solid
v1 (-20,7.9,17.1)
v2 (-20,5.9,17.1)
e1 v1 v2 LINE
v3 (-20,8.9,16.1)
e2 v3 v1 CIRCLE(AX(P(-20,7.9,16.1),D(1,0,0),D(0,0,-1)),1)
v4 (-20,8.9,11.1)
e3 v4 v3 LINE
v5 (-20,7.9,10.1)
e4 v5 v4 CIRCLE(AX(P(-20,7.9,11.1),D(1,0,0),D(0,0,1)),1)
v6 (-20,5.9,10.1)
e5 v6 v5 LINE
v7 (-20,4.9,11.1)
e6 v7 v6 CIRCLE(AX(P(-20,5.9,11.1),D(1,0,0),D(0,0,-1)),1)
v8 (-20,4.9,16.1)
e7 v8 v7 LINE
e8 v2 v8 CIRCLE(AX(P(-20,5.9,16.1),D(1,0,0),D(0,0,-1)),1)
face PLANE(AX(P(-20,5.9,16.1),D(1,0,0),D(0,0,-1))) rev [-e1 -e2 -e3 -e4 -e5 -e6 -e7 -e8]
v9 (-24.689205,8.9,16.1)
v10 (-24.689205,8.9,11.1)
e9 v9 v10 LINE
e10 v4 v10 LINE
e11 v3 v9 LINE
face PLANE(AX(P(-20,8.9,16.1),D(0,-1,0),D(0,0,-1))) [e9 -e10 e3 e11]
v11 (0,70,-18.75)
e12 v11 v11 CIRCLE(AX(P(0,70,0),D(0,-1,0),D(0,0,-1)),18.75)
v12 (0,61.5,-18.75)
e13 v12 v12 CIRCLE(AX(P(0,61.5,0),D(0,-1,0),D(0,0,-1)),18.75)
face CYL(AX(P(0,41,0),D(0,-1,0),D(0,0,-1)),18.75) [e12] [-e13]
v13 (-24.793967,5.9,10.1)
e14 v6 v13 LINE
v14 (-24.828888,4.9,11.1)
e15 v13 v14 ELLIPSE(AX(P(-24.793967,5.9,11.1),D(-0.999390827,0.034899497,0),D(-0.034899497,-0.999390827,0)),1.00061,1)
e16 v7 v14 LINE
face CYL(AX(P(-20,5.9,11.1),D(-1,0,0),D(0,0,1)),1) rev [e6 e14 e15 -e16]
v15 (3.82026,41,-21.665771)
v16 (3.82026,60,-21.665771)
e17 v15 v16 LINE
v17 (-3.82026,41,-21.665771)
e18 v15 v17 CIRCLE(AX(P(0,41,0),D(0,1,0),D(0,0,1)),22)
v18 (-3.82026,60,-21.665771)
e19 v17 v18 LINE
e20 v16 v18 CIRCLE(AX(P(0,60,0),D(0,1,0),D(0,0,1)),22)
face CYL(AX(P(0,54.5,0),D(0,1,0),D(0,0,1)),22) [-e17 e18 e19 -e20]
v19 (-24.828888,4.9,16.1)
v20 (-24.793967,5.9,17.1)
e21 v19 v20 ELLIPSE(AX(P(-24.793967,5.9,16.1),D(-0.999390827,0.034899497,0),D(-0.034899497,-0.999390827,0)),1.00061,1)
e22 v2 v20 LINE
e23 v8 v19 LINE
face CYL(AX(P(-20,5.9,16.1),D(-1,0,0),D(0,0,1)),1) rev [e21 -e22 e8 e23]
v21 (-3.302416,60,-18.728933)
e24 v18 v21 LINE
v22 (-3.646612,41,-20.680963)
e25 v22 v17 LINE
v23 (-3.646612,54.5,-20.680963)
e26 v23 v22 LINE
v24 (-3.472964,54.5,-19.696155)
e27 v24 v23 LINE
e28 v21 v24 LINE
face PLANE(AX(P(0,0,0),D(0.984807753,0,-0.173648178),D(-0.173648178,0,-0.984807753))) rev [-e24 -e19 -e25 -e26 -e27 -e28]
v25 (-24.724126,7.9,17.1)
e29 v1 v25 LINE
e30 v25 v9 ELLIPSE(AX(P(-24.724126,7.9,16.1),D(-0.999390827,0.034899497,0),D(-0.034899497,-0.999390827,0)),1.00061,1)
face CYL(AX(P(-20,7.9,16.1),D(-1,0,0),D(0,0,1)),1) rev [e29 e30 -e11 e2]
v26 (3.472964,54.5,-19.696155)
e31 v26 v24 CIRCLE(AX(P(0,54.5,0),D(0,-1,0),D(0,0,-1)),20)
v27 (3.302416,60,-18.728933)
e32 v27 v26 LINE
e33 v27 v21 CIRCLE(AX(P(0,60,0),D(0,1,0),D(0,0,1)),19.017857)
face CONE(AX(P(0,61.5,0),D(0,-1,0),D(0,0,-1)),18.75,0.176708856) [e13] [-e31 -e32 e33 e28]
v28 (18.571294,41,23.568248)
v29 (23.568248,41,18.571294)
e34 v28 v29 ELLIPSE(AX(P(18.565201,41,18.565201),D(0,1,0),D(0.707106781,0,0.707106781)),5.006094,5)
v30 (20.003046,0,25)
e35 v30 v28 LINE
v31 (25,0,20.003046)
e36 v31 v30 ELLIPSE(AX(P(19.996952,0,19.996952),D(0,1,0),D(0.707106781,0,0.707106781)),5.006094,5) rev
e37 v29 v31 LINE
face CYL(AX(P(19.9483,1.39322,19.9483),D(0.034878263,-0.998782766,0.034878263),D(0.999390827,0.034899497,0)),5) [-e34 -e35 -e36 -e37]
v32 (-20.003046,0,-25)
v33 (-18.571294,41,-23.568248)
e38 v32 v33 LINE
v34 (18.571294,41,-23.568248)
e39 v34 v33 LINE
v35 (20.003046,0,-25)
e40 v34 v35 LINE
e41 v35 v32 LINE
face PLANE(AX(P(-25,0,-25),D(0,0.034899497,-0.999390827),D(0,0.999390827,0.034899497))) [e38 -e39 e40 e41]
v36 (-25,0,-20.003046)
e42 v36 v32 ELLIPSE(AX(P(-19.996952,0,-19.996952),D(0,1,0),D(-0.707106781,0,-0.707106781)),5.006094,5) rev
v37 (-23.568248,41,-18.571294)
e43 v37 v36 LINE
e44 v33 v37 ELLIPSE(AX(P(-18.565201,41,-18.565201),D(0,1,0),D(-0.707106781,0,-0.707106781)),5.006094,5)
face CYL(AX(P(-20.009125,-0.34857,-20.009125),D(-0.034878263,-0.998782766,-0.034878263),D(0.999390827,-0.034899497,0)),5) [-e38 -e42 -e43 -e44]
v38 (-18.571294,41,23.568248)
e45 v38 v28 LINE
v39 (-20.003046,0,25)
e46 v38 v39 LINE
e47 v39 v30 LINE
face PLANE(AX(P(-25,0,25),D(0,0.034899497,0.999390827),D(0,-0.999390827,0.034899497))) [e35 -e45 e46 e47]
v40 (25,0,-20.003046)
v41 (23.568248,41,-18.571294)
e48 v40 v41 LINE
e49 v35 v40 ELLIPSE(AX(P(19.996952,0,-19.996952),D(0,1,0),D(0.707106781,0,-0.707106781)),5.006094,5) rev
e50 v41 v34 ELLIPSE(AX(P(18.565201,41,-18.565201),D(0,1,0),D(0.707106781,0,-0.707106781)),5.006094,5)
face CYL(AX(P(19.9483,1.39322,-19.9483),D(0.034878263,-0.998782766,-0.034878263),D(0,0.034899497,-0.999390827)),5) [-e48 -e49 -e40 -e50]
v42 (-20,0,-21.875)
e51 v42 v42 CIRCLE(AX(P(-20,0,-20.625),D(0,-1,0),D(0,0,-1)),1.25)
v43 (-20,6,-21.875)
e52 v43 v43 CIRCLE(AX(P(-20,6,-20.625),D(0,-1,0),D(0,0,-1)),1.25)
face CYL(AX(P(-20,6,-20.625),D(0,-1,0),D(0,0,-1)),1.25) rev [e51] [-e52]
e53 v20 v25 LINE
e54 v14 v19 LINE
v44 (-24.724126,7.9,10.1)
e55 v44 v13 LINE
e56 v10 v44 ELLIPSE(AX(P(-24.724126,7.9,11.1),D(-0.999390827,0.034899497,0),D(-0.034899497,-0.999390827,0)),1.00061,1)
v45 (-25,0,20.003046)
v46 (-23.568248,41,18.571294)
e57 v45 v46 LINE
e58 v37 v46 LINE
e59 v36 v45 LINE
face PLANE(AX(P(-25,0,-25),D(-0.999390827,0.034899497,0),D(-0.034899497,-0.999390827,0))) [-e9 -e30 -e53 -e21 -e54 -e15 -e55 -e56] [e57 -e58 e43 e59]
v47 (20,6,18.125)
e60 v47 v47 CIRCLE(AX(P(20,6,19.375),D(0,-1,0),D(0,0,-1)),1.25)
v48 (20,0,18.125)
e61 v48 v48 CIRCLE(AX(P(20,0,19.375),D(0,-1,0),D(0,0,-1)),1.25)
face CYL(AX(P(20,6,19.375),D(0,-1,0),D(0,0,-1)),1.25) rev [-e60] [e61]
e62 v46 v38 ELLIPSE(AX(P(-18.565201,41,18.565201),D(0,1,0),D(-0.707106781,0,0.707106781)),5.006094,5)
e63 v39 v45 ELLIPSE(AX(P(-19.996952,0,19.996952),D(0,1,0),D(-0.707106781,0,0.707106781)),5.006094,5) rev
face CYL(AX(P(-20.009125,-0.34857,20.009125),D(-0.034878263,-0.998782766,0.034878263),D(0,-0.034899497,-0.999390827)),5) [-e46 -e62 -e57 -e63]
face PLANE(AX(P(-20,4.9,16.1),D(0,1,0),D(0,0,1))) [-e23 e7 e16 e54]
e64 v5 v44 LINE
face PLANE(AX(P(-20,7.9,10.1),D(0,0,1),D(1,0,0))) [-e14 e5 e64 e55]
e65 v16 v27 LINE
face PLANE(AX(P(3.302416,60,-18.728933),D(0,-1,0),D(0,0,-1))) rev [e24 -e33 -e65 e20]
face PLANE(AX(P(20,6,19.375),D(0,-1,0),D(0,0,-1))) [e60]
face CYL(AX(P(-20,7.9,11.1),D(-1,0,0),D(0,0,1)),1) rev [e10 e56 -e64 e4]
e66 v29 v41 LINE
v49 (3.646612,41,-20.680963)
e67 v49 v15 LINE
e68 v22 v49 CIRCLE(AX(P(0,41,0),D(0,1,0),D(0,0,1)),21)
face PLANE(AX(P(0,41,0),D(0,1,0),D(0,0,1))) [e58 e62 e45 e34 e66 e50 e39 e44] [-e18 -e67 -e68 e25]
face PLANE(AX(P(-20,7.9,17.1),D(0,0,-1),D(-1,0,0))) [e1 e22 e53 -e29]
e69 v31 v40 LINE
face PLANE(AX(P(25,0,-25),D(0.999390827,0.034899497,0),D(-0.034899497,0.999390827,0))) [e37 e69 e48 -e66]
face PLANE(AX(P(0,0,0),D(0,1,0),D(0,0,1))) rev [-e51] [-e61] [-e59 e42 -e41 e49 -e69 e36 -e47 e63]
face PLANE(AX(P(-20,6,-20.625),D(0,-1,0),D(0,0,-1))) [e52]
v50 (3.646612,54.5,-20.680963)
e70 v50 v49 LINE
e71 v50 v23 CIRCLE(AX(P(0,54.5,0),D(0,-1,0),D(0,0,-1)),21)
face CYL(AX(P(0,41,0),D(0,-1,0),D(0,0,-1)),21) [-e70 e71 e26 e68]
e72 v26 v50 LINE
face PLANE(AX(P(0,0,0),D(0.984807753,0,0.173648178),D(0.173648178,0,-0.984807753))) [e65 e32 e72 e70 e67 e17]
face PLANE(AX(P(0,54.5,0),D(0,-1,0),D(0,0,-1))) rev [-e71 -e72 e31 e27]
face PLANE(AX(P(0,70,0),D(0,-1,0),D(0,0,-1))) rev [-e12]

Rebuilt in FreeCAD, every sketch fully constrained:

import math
import FreeCAD as App
import Part
import Sketcher


def edges_at(feature, points):
    """Names of the edges that pass closest to the given points."""
    edges = feature.Shape.Edges
    near = lambda p: min(range(len(edges)), key=lambda i: edges[i].distToShape(Part.Vertex(*p))[0])
    return sorted({f"Edge{near(p) + 1}" for p in points})

doc = App.newDocument("Part")
body = doc.addObject("PartDesign::Body", "Body")

sketch1 = body.newObject("Sketcher::SketchObject", "Sketch")
sketch1.AttachmentSupport = (doc.getObject("XZ_Plane"), [""])
sketch1.MapMode = "FlatFace"
sketch1.addGeometry(Part.LineSegment(App.Vector(-25, -25, 0), App.Vector(-25, 25, 0)), False)
sketch1.addGeometry(Part.LineSegment(App.Vector(-25, 25, 0), App.Vector(25, 25, 0)), False)
sketch1.addGeometry(Part.LineSegment(App.Vector(25, 25, 0), App.Vector(25, -25, 0)), False)
sketch1.addGeometry(Part.LineSegment(App.Vector(25, -25, 0), App.Vector(-25, -25, 0)), False)
sketch1.addConstraint(Sketcher.Constraint("Coincident", 0, 2, 1, 1))
sketch1.addConstraint(Sketcher.Constraint("Coincident", 1, 2, 2, 1))
sketch1.addConstraint(Sketcher.Constraint("Coincident", 2, 2, 3, 1))
sketch1.addConstraint(Sketcher.Constraint("Coincident", 3, 2, 0, 1))
sketch1.addConstraint(Sketcher.Constraint("Vertical", 0))
sketch1.addConstraint(Sketcher.Constraint("Horizontal", 1))
sketch1.addConstraint(Sketcher.Constraint("Vertical", 2))
sketch1.addConstraint(Sketcher.Constraint("Horizontal", 3))
sketch1.addConstraint(Sketcher.Constraint("Symmetric", 0, 2, 2, 2, -1, 1))
sketch1.addConstraint(Sketcher.Constraint("Equal", 3, 0))
sketch1.addConstraint(Sketcher.Constraint("DistanceX", 1, 1, 1, 2, 50.0))
pad1 = body.newObject("PartDesign::Pad", "Pad")
pad1.Profile = sketch1
pad1.Length = 41
pad1.Reversed = True
pad1.TaperAngle = -2

sketch2 = body.newObject("Sketcher::SketchObject", "Sketch001")
sketch2.AttachmentSupport = (doc.getObject("YZ_Plane"), [""])
sketch2.MapMode = "FlatFace"
sketch2.addGeometry(Part.LineSegment(App.Vector(70, 0, 0), App.Vector(41, 0, 0)), False)
sketch2.addGeometry(Part.LineSegment(App.Vector(41, 0, 0), App.Vector(41, -21, 0)), False)
sketch2.addGeometry(Part.LineSegment(App.Vector(41, -21, 0), App.Vector(54.5, -21, 0)), False)
sketch2.addGeometry(Part.LineSegment(App.Vector(54.5, -21, 0), App.Vector(54.5, -20, 0)), False)
sketch2.addGeometry(Part.LineSegment(App.Vector(54.5, -20, 0), App.Vector(61.5, -18.8, 0)), False)
sketch2.addGeometry(Part.LineSegment(App.Vector(61.5, -18.8, 0), App.Vector(70, -18.8, 0)), False)
sketch2.addGeometry(Part.LineSegment(App.Vector(70, -18.8, 0), App.Vector(70, 0, 0)), False)
sketch2.addConstraint(Sketcher.Constraint("Coincident", 0, 2, 1, 1))
sketch2.addConstraint(Sketcher.Constraint("Coincident", 1, 2, 2, 1))
sketch2.addConstraint(Sketcher.Constraint("Coincident", 2, 2, 3, 1))
sketch2.addConstraint(Sketcher.Constraint("Coincident", 3, 2, 4, 1))
sketch2.addConstraint(Sketcher.Constraint("Coincident", 4, 2, 5, 1))
sketch2.addConstraint(Sketcher.Constraint("Coincident", 5, 2, 6, 1))
sketch2.addConstraint(Sketcher.Constraint("Coincident", 6, 2, 0, 1))
sketch2.addConstraint(Sketcher.Constraint("Horizontal", 0))
sketch2.addConstraint(Sketcher.Constraint("Vertical", 1))
sketch2.addConstraint(Sketcher.Constraint("Horizontal", 2))
sketch2.addConstraint(Sketcher.Constraint("Vertical", 3))
sketch2.addConstraint(Sketcher.Constraint("Horizontal", 5))
sketch2.addConstraint(Sketcher.Constraint("Vertical", 6))
sketch2.addConstraint(Sketcher.Constraint("PointOnObject", 0, 2, -1))
sketch2.addConstraint(Sketcher.Constraint("DistanceX", 0, 2, 0, 1, 29.0))
sketch2.addConstraint(Sketcher.Constraint("DistanceY", 1, 2, 1, 1, 21.0))
sketch2.addConstraint(Sketcher.Constraint("DistanceY", 3, 1, 3, 2, 1.0))
sketch2.addConstraint(Sketcher.Constraint("DistanceX", 2, 1, 2, 2, 13.5))
sketch2.addConstraint(Sketcher.Constraint("DistanceX", 5, 1, 5, 2, 8.5))
sketch2.addConstraint(Sketcher.Constraint("DistanceX", -1, 1, 0, 2, 41.0))
sketch2.addConstraint(Sketcher.Constraint("DistanceY", 6, 1, 6, 2, 18.75))
revolution = body.newObject("PartDesign::Revolution", "Revolution")
revolution.Profile = sketch2
revolution.ReferenceAxis = (sketch2, ["H_Axis"])
revolution.Angle = 360
doc.recompute()

fillet = body.newObject("PartDesign::Fillet", "Fillet")
fillet.Base = (revolution, edges_at(revolution, [
    (24.284, 20.5, 24.284),
    (-24.284, 20.5, 24.284),
    (-24.284, 20.5, -24.284),
    (24.284, 20.5, -24.284),
]))
fillet.Radius = 5

sketch3 = body.newObject("Sketcher::SketchObject", "Sketch002")
sketch3.AttachmentSupport = (doc.getObject("XZ_Plane"), [""])
sketch3.MapMode = "FlatFace"
sketch3.addGeometry(Part.Circle(App.Vector(-20, -20.6, 0), App.Vector(0, 0, 1), 1.2), False)
sketch3.addGeometry(Part.Circle(App.Vector(20, 19.4, 0), App.Vector(0, 0, 1), 1.2), False)
sketch3.addConstraint(Sketcher.Constraint("Equal", 0, 1))
sketch3.addConstraint(Sketcher.Constraint("Diameter", 0, 2.5))
sketch3.addConstraint(Sketcher.Constraint("DistanceX", 0, 3, -1, 1, 20.0))
sketch3.addConstraint(Sketcher.Constraint("DistanceX", -1, 1, 1, 3, 20.0))
sketch3.addConstraint(Sketcher.Constraint("DistanceY", 0, 3, 1, 3, 40.0))
sketch3.addConstraint(Sketcher.Constraint("DistanceY", 0, 3, -1, 1, 20.625))
pocket1 = body.newObject("PartDesign::Pocket", "Pocket")
pocket1.Profile = sketch3
pocket1.Length = 6

sketch4 = body.newObject("Sketcher::SketchObject", "Sketch003")
sketch4.AttachmentSupport = (doc.getObject("YZ_Plane"), [""])
sketch4.MapMode = "FlatFace"
sketch4.addGeometry(Part.LineSegment(App.Vector(60, -22, 0), App.Vector(60, -19, 0)), False)
sketch4.addGeometry(Part.LineSegment(App.Vector(60, -19, 0), App.Vector(54.5, -20, 0)), False)
sketch4.addGeometry(Part.LineSegment(App.Vector(54.5, -20, 0), App.Vector(54.5, -21, 0)), False)
sketch4.addGeometry(Part.LineSegment(App.Vector(54.5, -21, 0), App.Vector(41, -21, 0)), False)
sketch4.addGeometry(Part.LineSegment(App.Vector(41, -21, 0), App.Vector(41, -22, 0)), False)
sketch4.addGeometry(Part.LineSegment(App.Vector(41, -22, 0), App.Vector(60, -22, 0)), False)
sketch4.addConstraint(Sketcher.Constraint("Coincident", 0, 2, 1, 1))
sketch4.addConstraint(Sketcher.Constraint("Coincident", 1, 2, 2, 1))
sketch4.addConstraint(Sketcher.Constraint("Coincident", 2, 2, 3, 1))
sketch4.addConstraint(Sketcher.Constraint("Coincident", 3, 2, 4, 1))
sketch4.addConstraint(Sketcher.Constraint("Coincident", 4, 2, 5, 1))
sketch4.addConstraint(Sketcher.Constraint("Coincident", 5, 2, 0, 1))
sketch4.addConstraint(Sketcher.Constraint("Vertical", 0))
sketch4.addConstraint(Sketcher.Constraint("Vertical", 2))
sketch4.addConstraint(Sketcher.Constraint("Horizontal", 3))
sketch4.addConstraint(Sketcher.Constraint("Vertical", 4))
sketch4.addConstraint(Sketcher.Constraint("Horizontal", 5))
sketch4.addConstraint(Sketcher.Constraint("Equal", 2, 4))
sketch4.addConstraint(Sketcher.Constraint("DistanceX", 5, 1, 5, 2, 19.0))
sketch4.addConstraint(Sketcher.Constraint("DistanceY", 2, 2, 2, 1, 1.0))
sketch4.addConstraint(Sketcher.Constraint("DistanceX", 3, 2, 3, 1, 13.5))
sketch4.addConstraint(Sketcher.Constraint("DistanceX", -1, 1, 0, 2, 60.0))
sketch4.addConstraint(Sketcher.Constraint("DistanceY", 1, 2, -1, 1, 20.0))
sketch4.addConstraint(Sketcher.Constraint("DistanceY", 0, 1, 0, 2, 2.982143))
revolution2 = body.newObject("PartDesign::Revolution", "Revolution001")
revolution2.Profile = sketch4
revolution2.ReferenceAxis = (sketch4, ["H_Axis"])
revolution2.Angle = 10
revolution2.Reversed = True

sketch5 = body.newObject("Sketcher::SketchObject", "Sketch004")
sketch5.AttachmentSupport = (doc.getObject("YZ_Plane"), [""])
sketch5.MapMode = "FlatFace"
sketch5.addGeometry(Part.LineSegment(App.Vector(60, -22, 0), App.Vector(60, -19, 0)), False)
sketch5.addGeometry(Part.LineSegment(App.Vector(60, -19, 0), App.Vector(54.5, -20, 0)), False)
sketch5.addGeometry(Part.LineSegment(App.Vector(54.5, -20, 0), App.Vector(54.5, -21, 0)), False)
sketch5.addGeometry(Part.LineSegment(App.Vector(54.5, -21, 0), App.Vector(41, -21, 0)), False)
sketch5.addGeometry(Part.LineSegment(App.Vector(41, -21, 0), App.Vector(41, -22, 0)), False)
sketch5.addGeometry(Part.LineSegment(App.Vector(41, -22, 0), App.Vector(60, -22, 0)), False)
sketch5.addConstraint(Sketcher.Constraint("Coincident", 0, 2, 1, 1))
sketch5.addConstraint(Sketcher.Constraint("Coincident", 1, 2, 2, 1))
sketch5.addConstraint(Sketcher.Constraint("Coincident", 2, 2, 3, 1))
sketch5.addConstraint(Sketcher.Constraint("Coincident", 3, 2, 4, 1))
sketch5.addConstraint(Sketcher.Constraint("Coincident", 4, 2, 5, 1))
sketch5.addConstraint(Sketcher.Constraint("Coincident", 5, 2, 0, 1))
sketch5.addConstraint(Sketcher.Constraint("Vertical", 0))
sketch5.addConstraint(Sketcher.Constraint("Vertical", 2))
sketch5.addConstraint(Sketcher.Constraint("Horizontal", 3))
sketch5.addConstraint(Sketcher.Constraint("Vertical", 4))
sketch5.addConstraint(Sketcher.Constraint("Horizontal", 5))
sketch5.addConstraint(Sketcher.Constraint("Equal", 2, 4))
sketch5.addConstraint(Sketcher.Constraint("DistanceX", 5, 1, 5, 2, 19.0))
sketch5.addConstraint(Sketcher.Constraint("DistanceY", 2, 2, 2, 1, 1.0))
sketch5.addConstraint(Sketcher.Constraint("DistanceX", 3, 2, 3, 1, 13.5))
sketch5.addConstraint(Sketcher.Constraint("DistanceX", -1, 1, 0, 2, 60.0))
sketch5.addConstraint(Sketcher.Constraint("DistanceY", 1, 2, -1, 1, 20.0))
sketch5.addConstraint(Sketcher.Constraint("DistanceY", 0, 1, 0, 2, 2.982143))
revolution3 = body.newObject("PartDesign::Revolution", "Revolution002")
revolution3.Profile = sketch5
revolution3.ReferenceAxis = (sketch5, ["H_Axis"])
revolution3.Angle = 10

sketch6 = body.newObject("Sketcher::SketchObject", "Sketch005")
sketch6.AttachmentSupport = (doc.getObject("YZ_Plane"), [""])
sketch6.MapMode = "FlatFace"
sketch6.AttachmentOffset = App.Placement(App.Vector(0, 0, -25), App.Rotation())
sketch6.addGeometry(Part.LineSegment(App.Vector(8.9, 11.1, 0), App.Vector(8.9, 16.1, 0)), False)
sketch6.addGeometry(Part.ArcOfCircle(Part.Circle(App.Vector(7.9, 16.1, 0), App.Vector(0, 0, 1), 1), math.radians(0), math.radians(90)), False)
sketch6.addGeometry(Part.LineSegment(App.Vector(7.9, 17.1, 0), App.Vector(5.9, 17.1, 0)), False)
sketch6.addGeometry(Part.ArcOfCircle(Part.Circle(App.Vector(5.9, 16.1, 0), App.Vector(0, 0, 1), 1), math.radians(90), math.radians(180)), False)
sketch6.addGeometry(Part.LineSegment(App.Vector(4.9, 16.1, 0), App.Vector(4.9, 11.1, 0)), False)
sketch6.addGeometry(Part.ArcOfCircle(Part.Circle(App.Vector(5.9, 11.1, 0), App.Vector(0, 0, 1), 1), math.radians(-180), math.radians(-90)), False)
sketch6.addGeometry(Part.LineSegment(App.Vector(5.9, 10.1, 0), App.Vector(7.9, 10.1, 0)), False)
sketch6.addGeometry(Part.ArcOfCircle(Part.Circle(App.Vector(7.9, 11.1, 0), App.Vector(0, 0, 1), 1), math.radians(-90), math.radians(0)), False)
sketch6.addConstraint(Sketcher.Constraint("Tangent", 0, 2, 1, 1))
sketch6.addConstraint(Sketcher.Constraint("Tangent", 1, 2, 2, 1))
sketch6.addConstraint(Sketcher.Constraint("Tangent", 2, 2, 3, 1))
sketch6.addConstraint(Sketcher.Constraint("Tangent", 3, 2, 4, 1))
sketch6.addConstraint(Sketcher.Constraint("Tangent", 4, 2, 5, 1))
sketch6.addConstraint(Sketcher.Constraint("Tangent", 5, 2, 6, 1))
sketch6.addConstraint(Sketcher.Constraint("Tangent", 6, 2, 7, 1))
sketch6.addConstraint(Sketcher.Constraint("Tangent", 7, 2, 0, 1))
sketch6.addConstraint(Sketcher.Constraint("Vertical", 0))
sketch6.addConstraint(Sketcher.Constraint("Horizontal", 2))
sketch6.addConstraint(Sketcher.Constraint("Vertical", 4))
sketch6.addConstraint(Sketcher.Constraint("Horizontal", 6))
sketch6.addConstraint(Sketcher.Constraint("Equal", 1, 3))
sketch6.addConstraint(Sketcher.Constraint("Equal", 3, 5))
sketch6.addConstraint(Sketcher.Constraint("Equal", 5, 7))
sketch6.addConstraint(Sketcher.Constraint("Radius", 1, 1.0))
sketch6.addConstraint(Sketcher.Constraint("DistanceX", 2, 2, 2, 1, 2.0))
sketch6.addConstraint(Sketcher.Constraint("DistanceY", 0, 1, 0, 2, 5.0))
sketch6.addConstraint(Sketcher.Constraint("DistanceX", -1, 1, 1, 3, 7.9))
sketch6.addConstraint(Sketcher.Constraint("DistanceY", -1, 1, 1, 3, 16.1))
pocket2 = body.newObject("PartDesign::Pocket", "Pocket001")
pocket2.Profile = sketch6
pocket2.Length = 5
pocket2.Reversed = True

doc.recompute()
